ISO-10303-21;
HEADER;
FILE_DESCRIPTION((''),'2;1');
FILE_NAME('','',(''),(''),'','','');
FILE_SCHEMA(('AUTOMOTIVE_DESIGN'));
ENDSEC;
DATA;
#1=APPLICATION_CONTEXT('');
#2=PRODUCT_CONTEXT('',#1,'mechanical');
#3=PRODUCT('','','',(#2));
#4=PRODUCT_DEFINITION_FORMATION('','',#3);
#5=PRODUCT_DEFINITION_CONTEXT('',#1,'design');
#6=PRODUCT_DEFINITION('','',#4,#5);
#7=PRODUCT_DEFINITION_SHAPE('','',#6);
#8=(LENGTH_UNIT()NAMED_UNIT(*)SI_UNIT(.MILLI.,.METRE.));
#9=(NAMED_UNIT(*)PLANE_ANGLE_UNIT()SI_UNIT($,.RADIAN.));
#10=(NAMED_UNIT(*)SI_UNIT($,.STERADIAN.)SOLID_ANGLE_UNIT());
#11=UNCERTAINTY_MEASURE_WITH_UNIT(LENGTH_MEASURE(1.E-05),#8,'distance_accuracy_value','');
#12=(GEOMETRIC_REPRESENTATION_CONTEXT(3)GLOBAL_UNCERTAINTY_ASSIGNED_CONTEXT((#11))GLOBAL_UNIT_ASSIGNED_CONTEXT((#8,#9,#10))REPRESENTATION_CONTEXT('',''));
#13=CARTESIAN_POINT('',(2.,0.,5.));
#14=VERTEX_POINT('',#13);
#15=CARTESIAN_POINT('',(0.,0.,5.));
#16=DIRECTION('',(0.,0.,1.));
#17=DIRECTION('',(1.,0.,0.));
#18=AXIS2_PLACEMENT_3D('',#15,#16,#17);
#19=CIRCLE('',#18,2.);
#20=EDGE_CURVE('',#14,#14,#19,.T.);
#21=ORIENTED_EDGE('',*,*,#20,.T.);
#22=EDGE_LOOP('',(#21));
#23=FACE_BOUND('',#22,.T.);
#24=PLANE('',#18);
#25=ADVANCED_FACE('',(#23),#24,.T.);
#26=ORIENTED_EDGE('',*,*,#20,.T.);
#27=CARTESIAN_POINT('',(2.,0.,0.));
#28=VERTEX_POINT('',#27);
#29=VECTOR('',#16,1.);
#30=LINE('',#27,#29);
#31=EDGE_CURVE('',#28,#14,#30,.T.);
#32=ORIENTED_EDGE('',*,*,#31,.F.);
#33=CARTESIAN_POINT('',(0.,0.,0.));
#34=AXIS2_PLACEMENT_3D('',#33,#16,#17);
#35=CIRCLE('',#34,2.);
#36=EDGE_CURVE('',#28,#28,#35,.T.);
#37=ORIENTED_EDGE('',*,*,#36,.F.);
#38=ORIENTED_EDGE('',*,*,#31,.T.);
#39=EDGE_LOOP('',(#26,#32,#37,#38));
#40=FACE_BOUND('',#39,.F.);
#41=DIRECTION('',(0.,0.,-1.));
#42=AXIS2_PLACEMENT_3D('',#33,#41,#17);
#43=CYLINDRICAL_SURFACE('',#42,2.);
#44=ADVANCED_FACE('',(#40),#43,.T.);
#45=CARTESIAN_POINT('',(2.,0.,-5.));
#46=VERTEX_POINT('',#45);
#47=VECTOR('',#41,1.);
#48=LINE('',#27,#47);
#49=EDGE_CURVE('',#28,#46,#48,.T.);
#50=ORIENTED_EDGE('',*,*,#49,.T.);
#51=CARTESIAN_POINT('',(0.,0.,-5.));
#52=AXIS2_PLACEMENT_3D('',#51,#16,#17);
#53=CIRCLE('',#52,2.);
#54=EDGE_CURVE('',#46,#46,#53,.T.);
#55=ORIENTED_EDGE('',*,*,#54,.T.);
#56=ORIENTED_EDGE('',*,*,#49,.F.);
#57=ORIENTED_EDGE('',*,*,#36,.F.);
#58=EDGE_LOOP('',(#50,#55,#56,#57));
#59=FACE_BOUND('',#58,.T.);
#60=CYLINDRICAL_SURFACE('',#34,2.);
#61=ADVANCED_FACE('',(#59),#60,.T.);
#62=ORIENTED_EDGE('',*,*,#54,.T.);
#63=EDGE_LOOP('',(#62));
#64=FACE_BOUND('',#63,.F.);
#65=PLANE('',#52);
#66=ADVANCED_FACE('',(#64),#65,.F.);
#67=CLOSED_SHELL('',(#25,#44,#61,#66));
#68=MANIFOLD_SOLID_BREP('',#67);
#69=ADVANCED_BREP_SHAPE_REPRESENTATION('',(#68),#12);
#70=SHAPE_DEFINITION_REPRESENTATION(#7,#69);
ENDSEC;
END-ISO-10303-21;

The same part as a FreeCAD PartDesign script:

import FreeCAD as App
import Part
import Sketcher

V = App.Vector
Q = App.Units.Quantity

doc = App.newDocument("Part")
params = doc.addObject("Spreadsheet::Sheet", "Params")
for row, (alias, value) in enumerate([
    ("sketch1_diameter", "4 mm"),
    ("pad1_length", "10 mm"),
], start=1):
    params.set(f"A{row}", alias)
    params.set(f"B{row}", "=" + value)
    params.setAlias(f"B{row}", alias)

body = doc.addObject("PartDesign::Body", "Body")

# Sketch on XY plane
sketch1 = doc.addObject("Sketcher::SketchObject", "Sketch")
body.addObject(sketch1)
sketch1.AttachmentSupport = (doc.XY_Plane, [""])
sketch1.MapMode = "FlatFace"
sketch1.addGeometry(Part.Circle(V(0, 0, 0), V(0, 0, 1), 2), False)
sketch1.addConstraint([
    Sketcher.Constraint("Coincident", 0, 3, -1, 1),
    Sketcher.Constraint("Diameter", 0, Q("4 mm")),
])
sketch1.setExpression("Constraints[1]", "Params.sketch1_diameter")
pad1 = doc.addObject("PartDesign::Pad", "Pad")
body.addObject(pad1)
pad1.Profile = sketch1
pad1.setExpression("Length", "Params.pad1_length")
pad1.Midplane = True

doc.recompute()
